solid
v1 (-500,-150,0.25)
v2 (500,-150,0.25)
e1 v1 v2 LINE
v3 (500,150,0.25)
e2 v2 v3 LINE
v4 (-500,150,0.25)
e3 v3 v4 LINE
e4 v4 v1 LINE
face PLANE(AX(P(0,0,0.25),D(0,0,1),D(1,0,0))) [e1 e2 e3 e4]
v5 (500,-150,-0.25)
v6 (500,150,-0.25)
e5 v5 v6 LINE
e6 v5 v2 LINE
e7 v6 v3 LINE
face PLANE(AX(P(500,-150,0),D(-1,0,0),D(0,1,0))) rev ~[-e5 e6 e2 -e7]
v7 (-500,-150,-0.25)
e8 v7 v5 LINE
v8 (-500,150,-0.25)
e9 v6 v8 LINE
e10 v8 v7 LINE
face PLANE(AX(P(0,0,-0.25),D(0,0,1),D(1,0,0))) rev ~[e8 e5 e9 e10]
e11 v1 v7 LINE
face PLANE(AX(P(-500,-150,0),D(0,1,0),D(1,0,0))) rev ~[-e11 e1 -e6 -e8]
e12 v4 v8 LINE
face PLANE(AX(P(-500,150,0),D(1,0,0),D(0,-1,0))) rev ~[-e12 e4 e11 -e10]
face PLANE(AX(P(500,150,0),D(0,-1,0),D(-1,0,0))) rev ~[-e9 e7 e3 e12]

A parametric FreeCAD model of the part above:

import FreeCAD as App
import Part
import Sketcher
Q = App.Units.Quantity

doc = App.newDocument("Part")
body = doc.addObject("PartDesign::Body", "Body")

sketch1 = body.newObject("Sketcher::SketchObject", "Sketch")
sketch1.AttachmentSupport = (doc.getObject("XY_Plane"), [""])
sketch1.MapMode = "FlatFace"
sketch1.addGeometry(Part.LineSegment(App.Vector(-500, 150, 0), App.Vector(-500, -150, 0)), False)
sketch1.addGeometry(Part.LineSegment(App.Vector(-500, -150, 0), App.Vector(500, -150, 0)), False)
sketch1.addGeometry(Part.LineSegment(App.Vector(500, -150, 0), App.Vector(500, 150, 0)), False)
sketch1.addGeometry(Part.LineSegment(App.Vector(500, 150, 0), App.Vector(-500, 150, 0)), False)
sketch1.addConstraint(Sketcher.Constraint("Coincident", 0, 2, 1, 1))
sketch1.addConstraint(Sketcher.Constraint("Coincident", 1, 2, 2, 1))
sketch1.addConstraint(Sketcher.Constraint("Coincident", 2, 2, 3, 1))
sketch1.addConstraint(Sketcher.Constraint("Coincident", 3, 2, 0, 1))
sketch1.addConstraint(Sketcher.Constraint("Vertical", 0))
sketch1.addConstraint(Sketcher.Constraint("Horizontal", 1))
sketch1.addConstraint(Sketcher.Constraint("Vertical", 2))
sketch1.addConstraint(Sketcher.Constraint("Horizontal", 3))
sketch1.addConstraint(Sketcher.Constraint("Symmetric", 0, 2, 2, 2, -1, 1))
sketch1.addConstraint(Sketcher.Constraint("DistanceX", 1, 1, 1, 2, Q("1000 mm")))
sketch1.addConstraint(Sketcher.Constraint("DistanceY", 0, 2, 0, 1, Q("300 mm")))
pad1 = body.newObject("PartDesign::Pad", "Pad")
pad1.Profile = sketch1
pad1.Length = 0.5
pad1.Midplane = True

doc.recompute()
